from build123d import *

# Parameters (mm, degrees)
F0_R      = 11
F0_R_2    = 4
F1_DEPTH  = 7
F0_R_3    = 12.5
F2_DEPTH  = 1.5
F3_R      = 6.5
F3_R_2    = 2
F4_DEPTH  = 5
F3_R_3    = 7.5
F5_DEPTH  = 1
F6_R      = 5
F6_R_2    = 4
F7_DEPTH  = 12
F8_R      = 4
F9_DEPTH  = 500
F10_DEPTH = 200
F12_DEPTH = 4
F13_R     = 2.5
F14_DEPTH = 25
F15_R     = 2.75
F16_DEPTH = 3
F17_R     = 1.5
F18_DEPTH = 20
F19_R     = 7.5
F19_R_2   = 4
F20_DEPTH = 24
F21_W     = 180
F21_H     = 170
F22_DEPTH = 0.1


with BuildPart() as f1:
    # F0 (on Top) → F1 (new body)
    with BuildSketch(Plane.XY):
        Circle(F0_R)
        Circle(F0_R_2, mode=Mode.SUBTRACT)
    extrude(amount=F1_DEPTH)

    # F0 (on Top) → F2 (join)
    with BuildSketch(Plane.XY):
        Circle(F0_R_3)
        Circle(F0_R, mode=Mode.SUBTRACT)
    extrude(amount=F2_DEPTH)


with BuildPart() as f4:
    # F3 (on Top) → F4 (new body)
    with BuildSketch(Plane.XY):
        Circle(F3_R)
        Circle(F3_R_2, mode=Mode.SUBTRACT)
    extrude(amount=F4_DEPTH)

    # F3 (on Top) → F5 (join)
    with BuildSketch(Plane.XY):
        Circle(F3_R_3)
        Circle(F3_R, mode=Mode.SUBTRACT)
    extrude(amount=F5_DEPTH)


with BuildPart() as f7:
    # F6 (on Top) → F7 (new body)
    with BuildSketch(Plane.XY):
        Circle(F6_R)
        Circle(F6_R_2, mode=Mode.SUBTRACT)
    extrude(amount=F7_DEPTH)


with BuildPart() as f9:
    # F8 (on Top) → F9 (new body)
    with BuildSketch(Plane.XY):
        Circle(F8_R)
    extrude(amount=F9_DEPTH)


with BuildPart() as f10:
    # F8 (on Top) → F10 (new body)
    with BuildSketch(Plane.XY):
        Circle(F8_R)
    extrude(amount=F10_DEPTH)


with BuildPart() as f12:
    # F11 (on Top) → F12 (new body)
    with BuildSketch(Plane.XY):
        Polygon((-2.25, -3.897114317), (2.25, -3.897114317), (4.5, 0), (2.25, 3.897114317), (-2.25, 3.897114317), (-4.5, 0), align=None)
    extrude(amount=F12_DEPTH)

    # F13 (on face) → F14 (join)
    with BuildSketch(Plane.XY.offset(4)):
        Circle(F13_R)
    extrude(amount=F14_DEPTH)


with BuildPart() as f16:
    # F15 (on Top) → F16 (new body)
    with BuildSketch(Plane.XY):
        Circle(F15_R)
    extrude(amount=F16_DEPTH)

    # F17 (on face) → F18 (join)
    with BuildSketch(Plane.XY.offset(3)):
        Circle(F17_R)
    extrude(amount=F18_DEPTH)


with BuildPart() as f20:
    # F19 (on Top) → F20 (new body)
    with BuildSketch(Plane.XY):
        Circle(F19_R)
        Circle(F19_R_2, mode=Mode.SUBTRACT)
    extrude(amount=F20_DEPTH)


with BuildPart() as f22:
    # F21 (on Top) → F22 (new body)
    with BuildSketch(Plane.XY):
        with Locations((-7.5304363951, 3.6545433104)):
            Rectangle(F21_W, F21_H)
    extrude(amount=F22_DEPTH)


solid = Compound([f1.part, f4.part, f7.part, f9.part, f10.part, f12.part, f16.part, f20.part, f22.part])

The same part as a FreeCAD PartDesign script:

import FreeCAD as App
import Part
import Sketcher
Q = App.Units.Quantity


def add_polygon(sketch, points):
    """Adds a closed chain of lines whose ends are joined by coincident constraints."""
    first, n = sketch.GeometryCount, len(points)
    for a, b in zip(points, points[1:] + points[:1]):
        sketch.addGeometry(Part.LineSegment(App.Vector(*a, 0), App.Vector(*b, 0)), False)
    for i in range(n):
        sketch.addConstraint(Sketcher.Constraint("Coincident", first + i, 2, first + (i + 1) % n, 1))

doc = App.newDocument("Part")
body = doc.addObject("PartDesign::Body", "Body")

# Sketch on XY plane
sketch1 = body.newObject("Sketcher::SketchObject", "Sketch")
sketch1.AttachmentSupport = (doc.getObject("XY_Plane"), [""])
sketch1.MapMode = "FlatFace"
sketch1.addGeometry([
    Part.Circle(App.Vector(0, 0, 0), App.Vector(0, 0, 1), 11),
    Part.Circle(App.Vector(0, 0, 0), App.Vector(0, 0, 1), 4),
], False)
sketch1.addConstraint([
    Sketcher.Constraint("Coincident", 0, 3, -1, 1),
    Sketcher.Constraint("Coincident", 1, 3, -1, 1),
    Sketcher.Constraint("Diameter", 0, Q("22 mm")),
    Sketcher.Constraint("Diameter", 1, Q("8 mm")),
])
pad1 = body.newObject("PartDesign::Pad", "Pad")
pad1.Profile = sketch1
pad1.Length = 7

# Sketch on XY plane
sketch2 = body.newObject("Sketcher::SketchObject", "Sketch001")
sketch2.AttachmentSupport = (doc.getObject("XY_Plane"), [""])
sketch2.MapMode = "FlatFace"
sketch2.addGeometry([
    Part.Circle(App.Vector(0, 0, 0), App.Vector(0, 0, 1), 12.5),
    Part.Circle(App.Vector(0, 0, 0), App.Vector(0, 0, 1), 11),
], False)
sketch2.addConstraint([
    Sketcher.Constraint("Coincident", 0, 3, -1, 1),
    Sketcher.Constraint("Coincident", 1, 3, -1, 1),
    Sketcher.Constraint("Diameter", 0, Q("25 mm")),
    Sketcher.Constraint("Diameter", 1, Q("22 mm")),
])
pad2 = body.newObject("PartDesign::Pad", "Pad001")
pad2.Profile = sketch2
pad2.Length = 1.5
body2 = doc.addObject("PartDesign::Body", "Body001")

# Sketch on XY plane
sketch3 = body2.newObject("Sketcher::SketchObject", "Sketch002")
sketch3.AttachmentSupport = (doc.getObject("XY_Plane001"), [""])
sketch3.MapMode = "FlatFace"
sketch3.addGeometry([
    Part.Circle(App.Vector(0, 0, 0), App.Vector(0, 0, 1), 6.5),
    Part.Circle(App.Vector(0, 0, 0), App.Vector(0, 0, 1), 2),
], False)
sketch3.addConstraint([
    Sketcher.Constraint("Coincident", 0, 3, -1, 1),
    Sketcher.Constraint("Coincident", 1, 3, -1, 1),
    Sketcher.Constraint("Diameter", 0, Q("13 mm")),
    Sketcher.Constraint("Diameter", 1, Q("4 mm")),
])
pad3 = body2.newObject("PartDesign::Pad", "Pad002")
pad3.Profile = sketch3
pad3.Length = 5

# Sketch on XY plane
sketch4 = body2.newObject("Sketcher::SketchObject", "Sketch003")
sketch4.AttachmentSupport = (doc.getObject("XY_Plane001"), [""])
sketch4.MapMode = "FlatFace"
sketch4.addGeometry([
    Part.Circle(App.Vector(0, 0, 0), App.Vector(0, 0, 1), 7.5),
    Part.Circle(App.Vector(0, 0, 0), App.Vector(0, 0, 1), 6.5),
], False)
sketch4.addConstraint([
    Sketcher.Constraint("Coincident", 0, 3, -1, 1),
    Sketcher.Constraint("Coincident", 1, 3, -1, 1),
    Sketcher.Constraint("Diameter", 0, Q("15 mm")),
    Sketcher.Constraint("Diameter", 1, Q("13 mm")),
])
pad4 = body2.newObject("PartDesign::Pad", "Pad003")
pad4.Profile = sketch4
pad4.Length = 1
body3 = doc.addObject("PartDesign::Body", "Body002")

# Sketch on XY plane
sketch5 = body3.newObject("Sketcher::SketchObject", "Sketch004")
sketch5.AttachmentSupport = (doc.getObject("XY_Plane002"), [""])
sketch5.MapMode = "FlatFace"
sketch5.addGeometry([
    Part.Circle(App.Vector(0, 0, 0), App.Vector(0, 0, 1), 5),
    Part.Circle(App.Vector(0, 0, 0), App.Vector(0, 0, 1), 4),
], False)
sketch5.addConstraint([
    Sketcher.Constraint("Coincident", 0, 3, -1, 1),
    Sketcher.Constraint("Coincident", 1, 3, -1, 1),
    Sketcher.Constraint("Diameter", 0, Q("10 mm")),
    Sketcher.Constraint("Diameter", 1, Q("8 mm")),
])
pad5 = body3.newObject("PartDesign::Pad", "Pad004")
pad5.Profile = sketch5
pad5.Length = 12
body4 = doc.addObject("PartDesign::Body", "Body003")

# Sketch on XY plane
sketch6 = body4.newObject("Sketcher::SketchObject", "Sketch005")
sketch6.AttachmentSupport = (doc.getObject("XY_Plane003"), [""])
sketch6.MapMode = "FlatFace"
sketch6.addGeometry(Part.Circle(App.Vector(0, 0, 0), App.Vector(0, 0, 1), 4), False)
sketch6.addConstraint([
    Sketcher.Constraint("Coincident", 0, 3, -1, 1),
    Sketcher.Constraint("Diameter", 0, Q("8 mm")),
])
pad6 = body4.newObject("PartDesign::Pad", "Pad005")
pad6.Profile = sketch6
pad6.Length = 500
body5 = doc.addObject("PartDesign::Body", "Body004")

# Sketch on XY plane
sketch7 = body5.newObject("Sketcher::SketchObject", "Sketch006")
sketch7.AttachmentSupport = (doc.getObject("XY_Plane004"), [""])
sketch7.MapMode = "FlatFace"
sketch7.addGeometry(Part.Circle(App.Vector(0, 0, 0), App.Vector(0, 0, 1), 4), False)
sketch7.addConstraint([
    Sketcher.Constraint("Coincident", 0, 3, -1, 1),
    Sketcher.Constraint("Diameter", 0, Q("8 mm")),
])
pad7 = body5.newObject("PartDesign::Pad", "Pad006")
pad7.Profile = sketch7
pad7.Length = 200
body6 = doc.addObject("PartDesign::Body", "Body005")

# Sketch on XY plane
sketch8 = body6.newObject("Sketcher::SketchObject", "Sketch007")
sketch8.AttachmentSupport = (doc.getObject("XY_Plane005"), [""])
sketch8.MapMode = "FlatFace"
add_polygon(sketch8, [(-2.25, -3.897114), (2.25, -3.897114), (4.5, 0), (2.25, 3.897114), (-2.25, 3.897114), (-4.5, 0)])  # lines 0-5
sketch8.addConstraint([
    Sketcher.Constraint("Horizontal", 0),
    Sketcher.Constraint("Horizontal", 3),
    Sketcher.Constraint("Symmetric", 0, 2, 3, 2, -1, 1),
    Sketcher.Constraint("Symmetric", 1, 2, 4, 2, -1, 1),
    Sketcher.Constraint("PointOnObject", 1, 2, -1),
    Sketcher.Constraint("Parallel", 2, 5),
    Sketcher.Constraint("Vertical", 0, 2, 2, 2),
    Sketcher.Constraint("Angle", 1, Q("60 deg")),
    Sketcher.Constraint("DistanceX", 0, 1, 0, 2, Q("4.5 mm")),
    Sketcher.Constraint("DistanceX", 4, 2, 1, 2, Q("9 mm")),
])
pad8 = body6.newObject("PartDesign::Pad", "Pad007")
pad8.Profile = sketch8
pad8.Length = 4

# Sketch on XY plane
sketch9 = body6.newObject("Sketcher::SketchObject", "Sketch008")
sketch9.AttachmentSupport = (doc.getObject("XY_Plane005"), [""])
sketch9.MapMode = "FlatFace"
sketch9.AttachmentOffset = App.Placement(App.Vector(0, 0, 4), App.Rotation())
sketch9.addGeometry(Part.Circle(App.Vector(0, 0, 0), App.Vector(0, 0, 1), 2.5), False)
sketch9.addConstraint([
    Sketcher.Constraint("Coincident", 0, 3, -1, 1),
    Sketcher.Constraint("Diameter", 0, Q("5 mm")),
])
pad9 = body6.newObject("PartDesign::Pad", "Pad008")
pad9.Profile = sketch9
pad9.Length = 25
body7 = doc.addObject("PartDesign::Body", "Body006")

# Sketch on XY plane
sketch10 = body7.newObject("Sketcher::SketchObject", "Sketch009")
sketch10.AttachmentSupport = (doc.getObject("XY_Plane006"), [""])
sketch10.MapMode = "FlatFace"
sketch10.addGeometry(Part.Circle(App.Vector(0, 0, 0), App.Vector(0, 0, 1), 2.75), False)
sketch10.addConstraint([
    Sketcher.Constraint("Coincident", 0, 3, -1, 1),
    Sketcher.Constraint("Diameter", 0, Q("5.5 mm")),
])
pad10 = body7.newObject("PartDesign::Pad", "Pad009")
pad10.Profile = sketch10
pad10.Length = 3

# Sketch on XY plane
sketch11 = body7.newObject("Sketcher::SketchObject", "Sketch010")
sketch11.AttachmentSupport = (doc.getObject("XY_Plane006"), [""])
sketch11.MapMode = "FlatFace"
sketch11.AttachmentOffset = App.Placement(App.Vector(0, 0, 3), App.Rotation())
sketch11.addGeometry(Part.Circle(App.Vector(0, 0, 0), App.Vector(0, 0, 1), 1.5), False)
sketch11.addConstraint([
    Sketcher.Constraint("Coincident", 0, 3, -1, 1),
    Sketcher.Constraint("Diameter", 0, Q("3 mm")),
])
pad11 = body7.newObject("PartDesign::Pad", "Pad010")
pad11.Profile = sketch11
pad11.Length = 20
body8 = doc.addObject("PartDesign::Body", "Body007")

# Sketch on XY plane
sketch12 = body8.newObject("Sketcher::SketchObject", "Sketch011")
sketch12.AttachmentSupport = (doc.getObject("XY_Plane007"), [""])
sketch12.MapMode = "FlatFace"
sketch12.addGeometry([
    Part.Circle(App.Vector(0, 0, 0), App.Vector(0, 0, 1), 7.5),
    Part.Circle(App.Vector(0, 0, 0), App.Vector(0, 0, 1), 4),
], False)
sketch12.addConstraint([
    Sketcher.Constraint("Coincident", 0, 3, -1, 1),
    Sketcher.Constraint("Coincident", 1, 3, -1, 1),
    Sketcher.Constraint("Diameter", 0, Q("15 mm")),
    Sketcher.Constraint("Diameter", 1, Q("8 mm")),
])
pad12 = body8.newObject("PartDesign::Pad", "Pad011")
pad12.Profile = sketch12
pad12.Length = 24
body9 = doc.addObject("PartDesign::Body", "Body008")

# Sketch on XY plane
sketch13 = body9.newObject("Sketcher::SketchObject", "Sketch012")
sketch13.AttachmentSupport = (doc.getObject("XY_Plane008"), [""])
sketch13.MapMode = "FlatFace"
add_polygon(sketch13, [(-97.530436, 88.654543), (-97.530436, -81.345457), (82.469564, -81.345457), (82.469564, 88.654543)])  # lines 0-3
sketch13.addConstraint([
    Sketcher.Constraint("Vertical", 0),
    Sketcher.Constraint("Horizontal", 1),
    Sketcher.Constraint("Vertical", 2),
    Sketcher.Constraint("Horizontal", 3),
    Sketcher.Constraint("DistanceX", 1, 1, 1, 2, Q("180 mm")),
    Sketcher.Constraint("DistanceY", 0, 2, 0, 1, Q("170 mm")),
    Sketcher.Constraint("DistanceX", 0, 2, -1, 1, Q("97.530436 mm")),
    Sketcher.Constraint("DistanceY", 0, 2, -1, 1, Q("81.345457 mm")),
])
pad13 = body9.newObject("PartDesign::Pad", "Pad012")
pad13.Profile = sketch13
pad13.Length = 0.1

doc.recompute()
